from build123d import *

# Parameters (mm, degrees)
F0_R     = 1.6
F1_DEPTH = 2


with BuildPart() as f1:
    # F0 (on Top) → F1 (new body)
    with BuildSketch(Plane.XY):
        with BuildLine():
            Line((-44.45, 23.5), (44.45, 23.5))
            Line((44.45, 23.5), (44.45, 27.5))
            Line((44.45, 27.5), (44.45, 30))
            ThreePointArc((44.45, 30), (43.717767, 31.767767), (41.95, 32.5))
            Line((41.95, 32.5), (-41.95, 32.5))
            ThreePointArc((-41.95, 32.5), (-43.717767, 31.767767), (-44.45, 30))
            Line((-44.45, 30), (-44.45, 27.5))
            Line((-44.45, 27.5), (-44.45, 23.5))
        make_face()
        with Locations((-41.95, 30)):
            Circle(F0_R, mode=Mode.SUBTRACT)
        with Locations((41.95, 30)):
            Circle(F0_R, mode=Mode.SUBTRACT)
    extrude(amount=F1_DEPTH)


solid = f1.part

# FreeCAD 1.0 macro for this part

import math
import FreeCAD as App
import Part
import Sketcher

doc = App.newDocument("Part")
body = doc.addObject("PartDesign::Body", "Body")

# Sketch on XY plane
sketch1 = doc.addObject("Sketcher::SketchObject", "Sketch")
body.addObject(sketch1)
sketch1.AttachmentSupport = (doc.XY_Plane, [""])
sketch1.MapMode = "FlatFace"
sketch1.addGeometry([
    Part.LineSegment(App.Vector(-44.5, 23.5, 0), App.Vector(44.5, 23.5, 0)),  # 0
    Part.LineSegment(App.Vector(44.5, 23.5, 0), App.Vector(44.5, 30, 0)),  # 1
    Part.ArcOfCircle(Part.Circle(App.Vector(42, 30, 0), App.Vector(0, 0, 1), 2.5), math.radians(0), math.radians(90)),  # 2
    Part.LineSegment(App.Vector(42, 32.5, 0), App.Vector(-42, 32.5, 0)),  # 3
    Part.ArcOfCircle(Part.Circle(App.Vector(-42, 30, 0), App.Vector(0, 0, 1), 2.5), math.radians(90), math.radians(180)),  # 4
    Part.LineSegment(App.Vector(-44.5, 30, 0), App.Vector(-44.5, 23.5, 0)),  # 5
    Part.Circle(App.Vector(-42, 30, 0), App.Vector(0, 0, 1), 1.6),  # 6
    Part.Circle(App.Vector(42, 30, 0), App.Vector(0, 0, 1), 1.6),  # 7
], False)
sketch1.addConstraint([
    Sketcher.Constraint("Coincident", 0, 2, 1, 1),
    Sketcher.Constraint("Tangent", 1, 2, 2, 1),
    Sketcher.Constraint("Tangent", 2, 2, 3, 1),
    Sketcher.Constraint("Tangent", 3, 2, 4, 1),
    Sketcher.Constraint("Tangent", 4, 2, 5, 1),
    Sketcher.Constraint("Coincident", 5, 2, 0, 1),
    Sketcher.Constraint("Horizontal", 0),
    Sketcher.Constraint("Vertical", 1),
    Sketcher.Constraint("Horizontal", 3),
    Sketcher.Constraint("Vertical", 5),
    Sketcher.Constraint("Coincident", 6, 3, 4, 3),
    Sketcher.Constraint("Coincident", 7, 3, 2, 3),
    Sketcher.Constraint("Equal", 2, 4),
    Sketcher.Constraint("Equal", 6, 7),
    Sketcher.Constraint("Diameter", 6, 3.2),
    Sketcher.Constraint("Radius", 2, 2.5),
    Sketcher.Constraint("DistanceX", 0, 1, 0, 2, 88.9),
    Sketcher.Constraint("DistanceY", 1, 1, 1, 2, 6.5),
    Sketcher.Constraint("DistanceY", -1, 1, 2, 3, 30.0),
    Sketcher.Constraint("DistanceX", -1, 1, 2, 3, 41.95),
])
pad1 = doc.addObject("PartDesign::Pad", "Pad")
body.addObject(pad1)
pad1.Profile = sketch1
pad1.Length = 2

doc.recompute()
